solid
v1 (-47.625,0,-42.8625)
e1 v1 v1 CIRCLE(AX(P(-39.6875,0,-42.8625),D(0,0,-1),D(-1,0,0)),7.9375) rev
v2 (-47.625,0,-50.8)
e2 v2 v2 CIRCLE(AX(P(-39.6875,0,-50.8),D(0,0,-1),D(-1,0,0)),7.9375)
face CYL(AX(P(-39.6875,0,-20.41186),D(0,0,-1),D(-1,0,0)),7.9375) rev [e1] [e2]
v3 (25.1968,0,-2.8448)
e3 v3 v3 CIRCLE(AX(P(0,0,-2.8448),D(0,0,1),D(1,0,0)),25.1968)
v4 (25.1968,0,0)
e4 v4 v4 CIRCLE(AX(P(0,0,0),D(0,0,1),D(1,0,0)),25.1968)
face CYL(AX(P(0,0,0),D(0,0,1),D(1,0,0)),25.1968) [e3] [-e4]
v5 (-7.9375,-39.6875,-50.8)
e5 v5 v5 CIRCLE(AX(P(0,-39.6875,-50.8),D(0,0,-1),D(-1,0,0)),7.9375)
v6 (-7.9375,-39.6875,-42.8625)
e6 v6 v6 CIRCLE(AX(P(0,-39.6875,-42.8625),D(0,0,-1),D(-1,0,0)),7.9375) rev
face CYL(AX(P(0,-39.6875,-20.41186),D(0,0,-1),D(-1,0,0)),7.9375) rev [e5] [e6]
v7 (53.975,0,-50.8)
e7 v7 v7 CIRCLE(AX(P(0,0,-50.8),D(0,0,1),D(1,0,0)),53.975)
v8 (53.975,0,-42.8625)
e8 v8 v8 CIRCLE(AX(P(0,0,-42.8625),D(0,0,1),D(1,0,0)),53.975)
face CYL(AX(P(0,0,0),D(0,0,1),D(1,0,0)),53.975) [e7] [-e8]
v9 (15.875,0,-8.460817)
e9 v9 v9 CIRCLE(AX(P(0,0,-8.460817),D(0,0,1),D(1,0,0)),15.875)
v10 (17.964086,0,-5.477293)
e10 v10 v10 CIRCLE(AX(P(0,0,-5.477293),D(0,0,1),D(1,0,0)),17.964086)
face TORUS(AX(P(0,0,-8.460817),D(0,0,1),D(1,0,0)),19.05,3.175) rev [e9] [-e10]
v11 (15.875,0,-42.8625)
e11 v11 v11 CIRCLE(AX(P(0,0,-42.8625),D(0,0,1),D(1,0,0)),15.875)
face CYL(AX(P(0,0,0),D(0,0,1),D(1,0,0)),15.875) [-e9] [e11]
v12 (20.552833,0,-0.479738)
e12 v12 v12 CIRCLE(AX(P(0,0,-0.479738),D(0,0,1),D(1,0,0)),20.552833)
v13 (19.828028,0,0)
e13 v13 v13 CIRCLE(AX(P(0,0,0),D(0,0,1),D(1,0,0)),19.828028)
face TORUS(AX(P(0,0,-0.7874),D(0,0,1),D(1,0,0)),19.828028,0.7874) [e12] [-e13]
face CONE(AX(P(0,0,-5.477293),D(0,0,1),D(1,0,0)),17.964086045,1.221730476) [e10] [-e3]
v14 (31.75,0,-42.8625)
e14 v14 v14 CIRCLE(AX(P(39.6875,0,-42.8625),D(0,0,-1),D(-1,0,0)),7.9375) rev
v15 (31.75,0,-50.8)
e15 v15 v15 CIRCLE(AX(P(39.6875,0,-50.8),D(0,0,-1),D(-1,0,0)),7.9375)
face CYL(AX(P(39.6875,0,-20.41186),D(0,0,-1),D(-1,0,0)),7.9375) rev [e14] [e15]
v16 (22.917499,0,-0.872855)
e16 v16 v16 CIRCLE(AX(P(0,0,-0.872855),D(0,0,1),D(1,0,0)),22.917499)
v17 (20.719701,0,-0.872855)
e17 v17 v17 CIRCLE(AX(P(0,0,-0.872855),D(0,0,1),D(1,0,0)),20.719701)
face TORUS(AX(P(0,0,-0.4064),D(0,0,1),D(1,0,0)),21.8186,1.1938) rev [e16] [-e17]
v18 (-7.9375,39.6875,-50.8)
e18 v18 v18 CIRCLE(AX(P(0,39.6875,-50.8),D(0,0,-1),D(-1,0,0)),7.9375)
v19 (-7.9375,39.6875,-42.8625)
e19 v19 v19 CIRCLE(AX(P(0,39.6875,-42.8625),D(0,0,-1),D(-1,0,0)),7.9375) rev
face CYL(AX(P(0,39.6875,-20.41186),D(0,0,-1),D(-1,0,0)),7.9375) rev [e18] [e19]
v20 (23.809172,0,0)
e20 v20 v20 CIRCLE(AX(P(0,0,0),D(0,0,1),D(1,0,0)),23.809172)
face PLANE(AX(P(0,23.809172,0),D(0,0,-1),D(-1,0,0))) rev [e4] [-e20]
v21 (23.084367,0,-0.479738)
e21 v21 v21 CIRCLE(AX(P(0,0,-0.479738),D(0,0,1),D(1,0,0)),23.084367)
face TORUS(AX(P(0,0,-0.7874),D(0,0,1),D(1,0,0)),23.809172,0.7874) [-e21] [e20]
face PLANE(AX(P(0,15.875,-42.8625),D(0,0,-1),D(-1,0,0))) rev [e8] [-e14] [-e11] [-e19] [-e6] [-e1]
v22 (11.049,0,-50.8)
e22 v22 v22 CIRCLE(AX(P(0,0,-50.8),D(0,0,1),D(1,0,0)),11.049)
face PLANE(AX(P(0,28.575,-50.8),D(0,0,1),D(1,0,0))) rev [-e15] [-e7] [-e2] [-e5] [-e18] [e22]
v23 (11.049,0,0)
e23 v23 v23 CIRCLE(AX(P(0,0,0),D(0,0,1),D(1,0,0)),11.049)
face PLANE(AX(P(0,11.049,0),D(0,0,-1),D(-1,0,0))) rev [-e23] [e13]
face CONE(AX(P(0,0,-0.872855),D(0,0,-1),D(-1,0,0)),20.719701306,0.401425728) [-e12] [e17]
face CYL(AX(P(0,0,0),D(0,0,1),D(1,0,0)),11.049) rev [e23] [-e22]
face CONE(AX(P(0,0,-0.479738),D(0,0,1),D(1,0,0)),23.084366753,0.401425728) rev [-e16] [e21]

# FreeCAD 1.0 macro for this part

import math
import FreeCAD as App
import Part
import Sketcher
from FreeCAD import Vector
Q = App.Units.Quantity

doc = App.newDocument("Part")
body = doc.addObject("PartDesign::Body", "Body")

sketch1 = body.newObject("Sketcher::SketchObject", "Sketch")
sketch1.AttachmentSupport = (doc.getObject("YZ_Plane"), [""])
sketch1.MapMode = "FlatFace"
sketch1.addGeometry([
    Part.LineSegment(Vector(19.83, 0, 0), Vector(11.05, 0, 0)),
    Part.LineSegment(Vector(11.05, 0, 0), Vector(11.05, -50.8, 0)),
    Part.LineSegment(Vector(11.05, -50.8, 0), Vector(53.98, -50.8, 0)),
    Part.LineSegment(Vector(53.98, -50.8, 0), Vector(53.98, -42.86, 0)),
    Part.LineSegment(Vector(53.98, -42.86, 0), Vector(15.88, -42.86, 0)),
    Part.LineSegment(Vector(15.88, -42.86, 0), Vector(15.88, -8.46, 0)),
    Part.ArcOfCircle(Part.Circle(Vector(19.05, -8.46, 0), Vector(0, 0, 1), 3.17), math.radians(110), math.radians(180)),
    Part.LineSegment(Vector(17.96, -5.48, 0), Vector(25.2, -2.84, 0)),
    Part.LineSegment(Vector(25.2, -2.84, 0), Vector(25.2, 0, 0)),
    Part.LineSegment(Vector(25.2, 0, 0), Vector(23.81, 0, 0)),
    Part.ArcOfCircle(Part.Circle(Vector(23.81, -0.79, 0), Vector(0, 0, 1), 0.79), math.radians(90), math.radians(157)),
    Part.LineSegment(Vector(23.08, -0.48, 0), Vector(22.92, -0.87, 0)),
    Part.ArcOfCircle(Part.Circle(Vector(21.82, -0.41, 0), Vector(0, 0, 1), 1.19), math.radians(-157), math.radians(-23)),
    Part.LineSegment(Vector(20.72, -0.87, 0), Vector(20.55, -0.48, 0)),
    Part.ArcOfCircle(Part.Circle(Vector(19.83, -0.79, 0), Vector(0, 0, 1), 0.79), math.radians(23), math.radians(90)),
], False)
sketch1.addConstraint([
    Sketcher.Constraint("Coincident", 0, 2, 1, 1),
    Sketcher.Constraint("Coincident", 1, 2, 2, 1),
    Sketcher.Constraint("Coincident", 2, 2, 3, 1),
    Sketcher.Constraint("Coincident", 3, 2, 4, 1),
    Sketcher.Constraint("Coincident", 4, 2, 5, 1),
    Sketcher.Constraint("Tangent", 5, 2, 6, 2),
    Sketcher.Constraint("Tangent", 6, 1, 7, 1),
    Sketcher.Constraint("Coincident", 7, 2, 8, 1),
    Sketcher.Constraint("Coincident", 8, 2, 9, 1),
    Sketcher.Constraint("Tangent", 9, 2, 10, 1),
    Sketcher.Constraint("Tangent", 10, 2, 11, 1),
    Sketcher.Constraint("Tangent", 11, 2, 12, 2),
    Sketcher.Constraint("Tangent", 12, 1, 13, 1),
    Sketcher.Constraint("Tangent", 13, 2, 14, 1),
    Sketcher.Constraint("Tangent", 14, 2, 0, 1),
    Sketcher.Constraint("Horizontal", 0),
    Sketcher.Constraint("Vertical", 1),
    Sketcher.Constraint("Horizontal", 2),
    Sketcher.Constraint("Vertical", 3),
    Sketcher.Constraint("Horizontal", 4),
    Sketcher.Constraint("Vertical", 5),
    Sketcher.Constraint("Vertical", 8),
    Sketcher.Constraint("Horizontal", 9),
    Sketcher.Constraint("Equal", 10, 14),
    Sketcher.Constraint("PointOnObject", 0, 2, -1),
    Sketcher.Constraint("PointOnObject", 8, 2, -1),
    Sketcher.Constraint("Horizontal", 11, 2, 12, 1),
    Sketcher.Constraint("DistanceY", 1, 2, 1, 1, Q("2 in")),
    Sketcher.Constraint("DistanceX", 4, 2, 4, 1, Q("1.5 in")),
    Sketcher.Constraint("Angle", 7, Q("20 deg")),
    Sketcher.Constraint("Angle", 11, Q("-113 deg")),
    Sketcher.Constraint("Radius", 6, Q("0.125 in")),
    Sketcher.Constraint("Radius", 10, Q("0.031 in")),
    Sketcher.Constraint("Radius", 12, Q("0.047 in")),
    Sketcher.Constraint("DistanceX", 2, 1, 2, 2, Q("1.69 in")),
    Sketcher.Constraint("DistanceY", 3, 1, 3, 2, Q("0.3125 in")),
    Sketcher.Constraint("DistanceY", 8, 1, 8, 2, Q("0.112 in")),
    Sketcher.Constraint("DistanceX", -1, 1, 6, 3, Q("0.75 in")),
    Sketcher.Constraint("DistanceX", -1, 1, 12, 3, Q("0.859 in")),
    Sketcher.Constraint("DistanceY", 12, 3, -1, 1, Q("0.016 in")),
    Sketcher.Constraint("DistanceX", -1, 1, 7, 2, Q("0.992 in")),
])
revolution = body.newObject("PartDesign::Revolution", "Revolution")
revolution.Profile = sketch1
revolution.ReferenceAxis = (sketch1, ["V_Axis"])
revolution.Angle = 360

sketch2 = body.newObject("Sketcher::SketchObject", "Sketch001")
sketch2.AttachmentSupport = (doc.getObject("XY_Plane"), [""])
sketch2.MapMode = "FlatFace"
sketch2.AttachmentOffset = App.Placement(Vector(0, 0, -2 * 25.4), App.Rotation())
sketch2.addGeometry([
    Part.Circle(Vector(0, 40, 0), Vector(0, 0, 1), 8),
    Part.Circle(Vector(-40, 0, 0), Vector(0, 0, 1), 8),
    Part.Circle(Vector(0, -40, 0), Vector(0, 0, 1), 8),
    Part.Circle(Vector(40, 0, 0), Vector(0, 0, 1), 8),
], False)
sketch2.addConstraint([
    Sketcher.Constraint("Equal", 0, 1),
    Sketcher.Constraint("Equal", 1, 2),
    Sketcher.Constraint("Equal", 2, 3),
    Sketcher.Constraint("Symmetric", 0, 3, 2, 3, -1, 1),
    Sketcher.Constraint("Symmetric", 1, 3, 3, 3, -1, 1),
    Sketcher.Constraint("PointOnObject", 0, 3, -2),
    Sketcher.Constraint("PointOnObject", 1, 3, -1),
    Sketcher.Constraint("Diameter", 0, Q("0.625 in")),
    Sketcher.Constraint("DistanceY", -1, 1, 0, 3, Q("1.5625 in")),
    Sketcher.Constraint("DistanceX", 1, 3, -1, 1, Q("1.5625 in")),
])
pocket1 = body.newObject("PartDesign::Pocket", "Pocket")
pocket1.Profile = sketch2
pocket1.Length = Q("0.3125 in")
pocket1.Reversed = True

doc.recompute()
